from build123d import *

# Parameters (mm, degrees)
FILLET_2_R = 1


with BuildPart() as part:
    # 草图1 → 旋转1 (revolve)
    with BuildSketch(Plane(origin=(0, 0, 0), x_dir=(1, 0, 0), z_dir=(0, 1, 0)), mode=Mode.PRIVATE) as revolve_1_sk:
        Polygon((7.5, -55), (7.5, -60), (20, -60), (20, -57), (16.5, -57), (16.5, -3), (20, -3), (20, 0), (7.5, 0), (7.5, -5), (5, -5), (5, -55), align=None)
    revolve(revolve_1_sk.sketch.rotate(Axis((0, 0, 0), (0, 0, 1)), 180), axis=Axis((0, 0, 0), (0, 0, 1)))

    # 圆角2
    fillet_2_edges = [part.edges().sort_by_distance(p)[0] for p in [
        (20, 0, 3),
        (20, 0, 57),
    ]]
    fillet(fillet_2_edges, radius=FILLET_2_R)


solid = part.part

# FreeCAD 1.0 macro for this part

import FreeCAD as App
import Part
import Sketcher
from FreeCAD import Vector


def edges_at(feature, points):
    """Names of the edges that pass closest to the given points."""
    edges = feature.Shape.Edges
    near = lambda p: min(range(len(edges)), key=lambda i: edges[i].distToShape(Part.Vertex(*p))[0])
    return sorted({f"Edge{near(p) + 1}" for p in points})


def add_polygon(sketch, points):
    """Adds a closed chain of lines whose ends are joined by coincident constraints."""
    first, n = sketch.GeometryCount, len(points)
    for a, b in zip(points, points[1:] + points[:1]):
        sketch.addGeometry(Part.LineSegment(App.Vector(*a, 0), App.Vector(*b, 0)), False)
    for i in range(n):
        sketch.addConstraint(Sketcher.Constraint("Coincident", first + i, 2, first + (i + 1) % n, 1))

doc = App.newDocument("Part")
body = doc.addObject("PartDesign::Body", "Body")

sketch1 = body.newObject("Sketcher::SketchObject", "Sketch")
sketch1.AttachmentSupport = (doc.getObject("XZ_Plane"), [""])
sketch1.MapMode = "FlatFace"
add_polygon(sketch1, [(7.5, 55), (7.5, 60), (20, 60), (20, 57), (16.5, 57), (16.5, 3), (20, 3), (20, 0), (7.5, 0), (7.5, 5), (5, 5), (5, 55)])
sketch1.addConstraint(Sketcher.Constraint("Vertical", 0))
sketch1.addConstraint(Sketcher.Constraint("Horizontal", 1))
sketch1.addConstraint(Sketcher.Constraint("Vertical", 2))
sketch1.addConstraint(Sketcher.Constraint("Horizontal", 3))
sketch1.addConstraint(Sketcher.Constraint("Vertical", 4))
sketch1.addConstraint(Sketcher.Constraint("Horizontal", 5))
sketch1.addConstraint(Sketcher.Constraint("Vertical", 6))
sketch1.addConstraint(Sketcher.Constraint("Horizontal", 7))
sketch1.addConstraint(Sketcher.Constraint("Vertical", 8))
sketch1.addConstraint(Sketcher.Constraint("Horizontal", 9))
sketch1.addConstraint(Sketcher.Constraint("Vertical", 10))
sketch1.addConstraint(Sketcher.Constraint("Horizontal", 11))
sketch1.addConstraint(Sketcher.Constraint("PointOnObject", 6, 2, -1))
sketch1.addConstraint(Sketcher.Constraint("Vertical", 2, 2, 5, 2))
sketch1.addConstraint(Sketcher.Constraint("Vertical", 0, 2, 7, 2))
sketch1.addConstraint(Sketcher.Constraint("Equal", 2, 6))
sketch1.addConstraint(Sketcher.Constraint("Equal", 0, 8))
sketch1.addConstraint(Sketcher.Constraint("DistanceY", 0, 1, 0, 2, 5.0))
sketch1.addConstraint(Sketcher.Constraint("DistanceY", 2, 2, 2, 1, 3.0))
sketch1.addConstraint(Sketcher.Constraint("DistanceY", 4, 2, 4, 1, 54.0))
sketch1.addConstraint(Sketcher.Constraint("DistanceX", 1, 1, 1, 2, 12.5))
sketch1.addConstraint(Sketcher.Constraint("DistanceX", 3, 2, 3, 1, 3.5))
sketch1.addConstraint(Sketcher.Constraint("DistanceX", 9, 2, 9, 1, 2.5))
sketch1.addConstraint(Sketcher.Constraint("DistanceX", -1, 1, 1, 2, 20.0))
revolution = body.newObject("PartDesign::Revolution", "Revolution")
revolution.Profile = sketch1
revolution.ReferenceAxis = (sketch1, ["V_Axis"])
revolution.Angle = 360
doc.recompute()

fillet = body.newObject("PartDesign::Fillet", "Fillet")
fillet.Base = (revolution, edges_at(revolution, [(20, 0, 3), (20, 0, 57)]))
fillet.Radius = 1

doc.recompute()
